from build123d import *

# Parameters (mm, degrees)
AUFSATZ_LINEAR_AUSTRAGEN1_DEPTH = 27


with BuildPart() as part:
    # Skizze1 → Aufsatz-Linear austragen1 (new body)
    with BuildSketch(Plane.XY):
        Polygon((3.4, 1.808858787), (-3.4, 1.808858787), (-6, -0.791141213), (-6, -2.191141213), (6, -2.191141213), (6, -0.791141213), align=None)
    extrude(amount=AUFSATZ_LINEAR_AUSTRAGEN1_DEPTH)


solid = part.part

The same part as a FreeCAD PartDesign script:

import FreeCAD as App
import Part
import Sketcher
from FreeCAD import Vector

doc = App.newDocument("Part")
body = doc.addObject("PartDesign::Body", "Body")

# Sketch on XY plane
sketch1 = doc.addObject("Sketcher::SketchObject", "Sketch")
body.addObject(sketch1)
sketch1.AttachmentSupport = (doc.XY_Plane, [""])
sketch1.MapMode = "FlatFace"
sketch1.addGeometry([
    Part.LineSegment(Vector(3.4, 1.8, 0), Vector(-3.4, 1.8, 0)),  # 0
    Part.LineSegment(Vector(-3.4, 1.8, 0), Vector(-6, -0.8, 0)),  # 1
    Part.LineSegment(Vector(-6, -0.8, 0), Vector(-6, -2.2, 0)),  # 2
    Part.LineSegment(Vector(-6, -2.2, 0), Vector(6, -2.2, 0)),  # 3
    Part.LineSegment(Vector(6, -2.2, 0), Vector(6, -0.8, 0)),  # 4
    Part.LineSegment(Vector(6, -0.8, 0), Vector(3.4, 1.8, 0)),  # 5
], False)
sketch1.addConstraint([
    Sketcher.Constraint("Coincident", 0, 2, 1, 1),
    Sketcher.Constraint("Coincident", 1, 2, 2, 1),
    Sketcher.Constraint("Coincident", 2, 2, 3, 1),
    Sketcher.Constraint("Coincident", 3, 2, 4, 1),
    Sketcher.Constraint("Coincident", 4, 2, 5, 1),
    Sketcher.Constraint("Coincident", 5, 2, 0, 1),
    Sketcher.Constraint("Horizontal", 0),
    Sketcher.Constraint("Vertical", 2),
    Sketcher.Constraint("Horizontal", 3),
    Sketcher.Constraint("Vertical", 4),
    Sketcher.Constraint("Symmetric", 1, 2, 4, 2, -2),
    Sketcher.Constraint("Perpendicular", 1, 5),
    Sketcher.Constraint("Equal", 1, 5),
    Sketcher.Constraint("DistanceX", 3, 1, 3, 2, 12.0),
    Sketcher.Constraint("DistanceX", 0, 2, 0, 1, 6.8),
    Sketcher.Constraint("DistanceY", 2, 2, 2, 1, 1.4),
    Sketcher.Constraint("DistanceY", -1, 1, 0, 2, 1.808859),
])
pad1 = doc.addObject("PartDesign::Pad", "Pad")
body.addObject(pad1)
pad1.Profile = sketch1
pad1.Length = 27

doc.recompute()
